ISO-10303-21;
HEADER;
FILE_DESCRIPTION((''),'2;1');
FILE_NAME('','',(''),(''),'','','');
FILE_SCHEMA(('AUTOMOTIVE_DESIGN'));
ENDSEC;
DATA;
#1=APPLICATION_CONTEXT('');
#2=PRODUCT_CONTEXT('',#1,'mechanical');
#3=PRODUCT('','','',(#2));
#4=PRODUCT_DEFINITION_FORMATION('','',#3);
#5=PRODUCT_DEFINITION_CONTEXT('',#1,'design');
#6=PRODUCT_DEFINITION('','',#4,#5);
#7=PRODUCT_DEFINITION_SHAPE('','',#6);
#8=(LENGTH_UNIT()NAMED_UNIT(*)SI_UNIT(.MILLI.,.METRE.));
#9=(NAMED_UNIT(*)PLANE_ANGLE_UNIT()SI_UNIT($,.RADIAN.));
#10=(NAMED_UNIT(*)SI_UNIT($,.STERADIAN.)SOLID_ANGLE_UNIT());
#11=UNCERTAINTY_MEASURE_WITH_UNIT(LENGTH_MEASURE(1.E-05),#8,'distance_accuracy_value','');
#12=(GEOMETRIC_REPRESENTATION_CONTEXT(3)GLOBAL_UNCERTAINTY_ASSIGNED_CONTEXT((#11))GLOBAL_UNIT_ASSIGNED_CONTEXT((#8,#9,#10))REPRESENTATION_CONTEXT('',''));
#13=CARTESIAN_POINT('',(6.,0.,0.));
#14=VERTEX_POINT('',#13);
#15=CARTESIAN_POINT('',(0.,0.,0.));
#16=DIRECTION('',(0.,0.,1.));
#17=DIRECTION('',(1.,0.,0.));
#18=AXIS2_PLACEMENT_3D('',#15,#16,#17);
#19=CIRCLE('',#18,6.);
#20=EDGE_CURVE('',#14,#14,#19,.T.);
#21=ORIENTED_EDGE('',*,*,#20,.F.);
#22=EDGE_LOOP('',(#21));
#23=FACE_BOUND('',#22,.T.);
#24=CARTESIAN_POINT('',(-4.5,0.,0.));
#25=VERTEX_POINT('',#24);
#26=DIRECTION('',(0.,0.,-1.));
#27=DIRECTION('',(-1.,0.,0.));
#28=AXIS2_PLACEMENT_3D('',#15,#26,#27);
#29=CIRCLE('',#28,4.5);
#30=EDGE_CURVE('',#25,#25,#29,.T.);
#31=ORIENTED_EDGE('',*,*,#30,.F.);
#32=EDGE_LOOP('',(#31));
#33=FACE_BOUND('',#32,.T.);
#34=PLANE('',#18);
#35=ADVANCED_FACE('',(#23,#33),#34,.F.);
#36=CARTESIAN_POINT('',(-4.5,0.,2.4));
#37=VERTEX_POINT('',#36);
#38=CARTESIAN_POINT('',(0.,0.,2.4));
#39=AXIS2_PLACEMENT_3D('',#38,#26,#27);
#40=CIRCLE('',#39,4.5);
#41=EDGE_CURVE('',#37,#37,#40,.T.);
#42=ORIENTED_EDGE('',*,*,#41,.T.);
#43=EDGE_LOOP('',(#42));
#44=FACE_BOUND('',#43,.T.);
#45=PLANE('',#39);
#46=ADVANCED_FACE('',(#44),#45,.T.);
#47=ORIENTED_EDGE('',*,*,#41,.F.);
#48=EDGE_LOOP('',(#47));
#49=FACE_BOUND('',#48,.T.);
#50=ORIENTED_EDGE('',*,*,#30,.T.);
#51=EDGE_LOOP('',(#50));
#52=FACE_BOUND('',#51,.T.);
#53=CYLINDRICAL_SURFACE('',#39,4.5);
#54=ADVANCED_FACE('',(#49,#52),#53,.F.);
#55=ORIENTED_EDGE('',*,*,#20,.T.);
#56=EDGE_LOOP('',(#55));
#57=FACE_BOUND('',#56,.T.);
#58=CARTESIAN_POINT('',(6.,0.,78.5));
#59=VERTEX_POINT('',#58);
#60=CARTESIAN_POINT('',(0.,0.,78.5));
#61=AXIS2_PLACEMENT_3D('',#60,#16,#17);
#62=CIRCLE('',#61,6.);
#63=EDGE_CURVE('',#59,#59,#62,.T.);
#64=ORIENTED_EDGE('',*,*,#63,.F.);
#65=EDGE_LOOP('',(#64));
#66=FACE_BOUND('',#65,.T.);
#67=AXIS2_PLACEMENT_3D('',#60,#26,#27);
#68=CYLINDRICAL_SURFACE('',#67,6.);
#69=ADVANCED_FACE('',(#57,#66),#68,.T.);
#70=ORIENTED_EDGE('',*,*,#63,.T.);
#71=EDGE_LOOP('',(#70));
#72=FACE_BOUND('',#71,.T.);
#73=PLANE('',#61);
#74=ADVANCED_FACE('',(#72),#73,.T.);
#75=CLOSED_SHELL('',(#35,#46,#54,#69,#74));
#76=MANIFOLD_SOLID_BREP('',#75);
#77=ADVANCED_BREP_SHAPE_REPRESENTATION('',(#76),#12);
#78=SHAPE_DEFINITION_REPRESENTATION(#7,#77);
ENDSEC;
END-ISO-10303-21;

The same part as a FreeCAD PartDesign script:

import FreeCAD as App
import Part
import Sketcher
Q = App.Units.Quantity

doc = App.newDocument("Part")
params = doc.addObject("Spreadsheet::Sheet", "Params")
for row, (alias, value) in enumerate([
    ("sketch1_diameter", "12 mm"),
    ("pad1_length", "78.5 mm"),
    ("sketch2_diameter", "9 mm"),
    ("pocket1_length", "2.4 mm"),
], start=1):
    params.set(f"A{row}", alias)
    params.set(f"B{row}", "=" + value)
    params.setAlias(f"B{row}", alias)

body = doc.addObject("PartDesign::Body", "Body")

# Sketch on XY plane
sketch1 = body.newObject("Sketcher::SketchObject", "Sketch")
sketch1.AttachmentSupport = (doc.getObject("XY_Plane"), [""])
sketch1.MapMode = "FlatFace"
sketch1.addGeometry(Part.Circle(App.Vector(0, 0, 0), App.Vector(0, 0, 1), 6), False)
sketch1.addConstraint([
    Sketcher.Constraint("Coincident", 0, 3, -1, 1),
    Sketcher.Constraint("Diameter", 0, Q("12 mm")),
])
sketch1.setExpression("Constraints[1]", "Params.sketch1_diameter")
pad1 = body.newObject("PartDesign::Pad", "Pad")
pad1.Profile = sketch1
pad1.setExpression("Length", "Params.pad1_length")

# Sketch on XY plane
sketch2 = body.newObject("Sketcher::SketchObject", "Sketch001")
sketch2.AttachmentSupport = (doc.getObject("XY_Plane"), [""])
sketch2.MapMode = "FlatFace"
sketch2.addGeometry(Part.Circle(App.Vector(0, 0, 0), App.Vector(0, 0, 1), 4.5), False)
sketch2.addConstraint([
    Sketcher.Constraint("Coincident", 0, 3, -1, 1),
    Sketcher.Constraint("Diameter", 0, Q("9 mm")),
])
sketch2.setExpression("Constraints[1]", "Params.sketch2_diameter")
pocket1 = body.newObject("PartDesign::Pocket", "Pocket")
pocket1.Profile = sketch2
pocket1.setExpression("Length", "Params.pocket1_length")
pocket1.Reversed = True

doc.recompute()
